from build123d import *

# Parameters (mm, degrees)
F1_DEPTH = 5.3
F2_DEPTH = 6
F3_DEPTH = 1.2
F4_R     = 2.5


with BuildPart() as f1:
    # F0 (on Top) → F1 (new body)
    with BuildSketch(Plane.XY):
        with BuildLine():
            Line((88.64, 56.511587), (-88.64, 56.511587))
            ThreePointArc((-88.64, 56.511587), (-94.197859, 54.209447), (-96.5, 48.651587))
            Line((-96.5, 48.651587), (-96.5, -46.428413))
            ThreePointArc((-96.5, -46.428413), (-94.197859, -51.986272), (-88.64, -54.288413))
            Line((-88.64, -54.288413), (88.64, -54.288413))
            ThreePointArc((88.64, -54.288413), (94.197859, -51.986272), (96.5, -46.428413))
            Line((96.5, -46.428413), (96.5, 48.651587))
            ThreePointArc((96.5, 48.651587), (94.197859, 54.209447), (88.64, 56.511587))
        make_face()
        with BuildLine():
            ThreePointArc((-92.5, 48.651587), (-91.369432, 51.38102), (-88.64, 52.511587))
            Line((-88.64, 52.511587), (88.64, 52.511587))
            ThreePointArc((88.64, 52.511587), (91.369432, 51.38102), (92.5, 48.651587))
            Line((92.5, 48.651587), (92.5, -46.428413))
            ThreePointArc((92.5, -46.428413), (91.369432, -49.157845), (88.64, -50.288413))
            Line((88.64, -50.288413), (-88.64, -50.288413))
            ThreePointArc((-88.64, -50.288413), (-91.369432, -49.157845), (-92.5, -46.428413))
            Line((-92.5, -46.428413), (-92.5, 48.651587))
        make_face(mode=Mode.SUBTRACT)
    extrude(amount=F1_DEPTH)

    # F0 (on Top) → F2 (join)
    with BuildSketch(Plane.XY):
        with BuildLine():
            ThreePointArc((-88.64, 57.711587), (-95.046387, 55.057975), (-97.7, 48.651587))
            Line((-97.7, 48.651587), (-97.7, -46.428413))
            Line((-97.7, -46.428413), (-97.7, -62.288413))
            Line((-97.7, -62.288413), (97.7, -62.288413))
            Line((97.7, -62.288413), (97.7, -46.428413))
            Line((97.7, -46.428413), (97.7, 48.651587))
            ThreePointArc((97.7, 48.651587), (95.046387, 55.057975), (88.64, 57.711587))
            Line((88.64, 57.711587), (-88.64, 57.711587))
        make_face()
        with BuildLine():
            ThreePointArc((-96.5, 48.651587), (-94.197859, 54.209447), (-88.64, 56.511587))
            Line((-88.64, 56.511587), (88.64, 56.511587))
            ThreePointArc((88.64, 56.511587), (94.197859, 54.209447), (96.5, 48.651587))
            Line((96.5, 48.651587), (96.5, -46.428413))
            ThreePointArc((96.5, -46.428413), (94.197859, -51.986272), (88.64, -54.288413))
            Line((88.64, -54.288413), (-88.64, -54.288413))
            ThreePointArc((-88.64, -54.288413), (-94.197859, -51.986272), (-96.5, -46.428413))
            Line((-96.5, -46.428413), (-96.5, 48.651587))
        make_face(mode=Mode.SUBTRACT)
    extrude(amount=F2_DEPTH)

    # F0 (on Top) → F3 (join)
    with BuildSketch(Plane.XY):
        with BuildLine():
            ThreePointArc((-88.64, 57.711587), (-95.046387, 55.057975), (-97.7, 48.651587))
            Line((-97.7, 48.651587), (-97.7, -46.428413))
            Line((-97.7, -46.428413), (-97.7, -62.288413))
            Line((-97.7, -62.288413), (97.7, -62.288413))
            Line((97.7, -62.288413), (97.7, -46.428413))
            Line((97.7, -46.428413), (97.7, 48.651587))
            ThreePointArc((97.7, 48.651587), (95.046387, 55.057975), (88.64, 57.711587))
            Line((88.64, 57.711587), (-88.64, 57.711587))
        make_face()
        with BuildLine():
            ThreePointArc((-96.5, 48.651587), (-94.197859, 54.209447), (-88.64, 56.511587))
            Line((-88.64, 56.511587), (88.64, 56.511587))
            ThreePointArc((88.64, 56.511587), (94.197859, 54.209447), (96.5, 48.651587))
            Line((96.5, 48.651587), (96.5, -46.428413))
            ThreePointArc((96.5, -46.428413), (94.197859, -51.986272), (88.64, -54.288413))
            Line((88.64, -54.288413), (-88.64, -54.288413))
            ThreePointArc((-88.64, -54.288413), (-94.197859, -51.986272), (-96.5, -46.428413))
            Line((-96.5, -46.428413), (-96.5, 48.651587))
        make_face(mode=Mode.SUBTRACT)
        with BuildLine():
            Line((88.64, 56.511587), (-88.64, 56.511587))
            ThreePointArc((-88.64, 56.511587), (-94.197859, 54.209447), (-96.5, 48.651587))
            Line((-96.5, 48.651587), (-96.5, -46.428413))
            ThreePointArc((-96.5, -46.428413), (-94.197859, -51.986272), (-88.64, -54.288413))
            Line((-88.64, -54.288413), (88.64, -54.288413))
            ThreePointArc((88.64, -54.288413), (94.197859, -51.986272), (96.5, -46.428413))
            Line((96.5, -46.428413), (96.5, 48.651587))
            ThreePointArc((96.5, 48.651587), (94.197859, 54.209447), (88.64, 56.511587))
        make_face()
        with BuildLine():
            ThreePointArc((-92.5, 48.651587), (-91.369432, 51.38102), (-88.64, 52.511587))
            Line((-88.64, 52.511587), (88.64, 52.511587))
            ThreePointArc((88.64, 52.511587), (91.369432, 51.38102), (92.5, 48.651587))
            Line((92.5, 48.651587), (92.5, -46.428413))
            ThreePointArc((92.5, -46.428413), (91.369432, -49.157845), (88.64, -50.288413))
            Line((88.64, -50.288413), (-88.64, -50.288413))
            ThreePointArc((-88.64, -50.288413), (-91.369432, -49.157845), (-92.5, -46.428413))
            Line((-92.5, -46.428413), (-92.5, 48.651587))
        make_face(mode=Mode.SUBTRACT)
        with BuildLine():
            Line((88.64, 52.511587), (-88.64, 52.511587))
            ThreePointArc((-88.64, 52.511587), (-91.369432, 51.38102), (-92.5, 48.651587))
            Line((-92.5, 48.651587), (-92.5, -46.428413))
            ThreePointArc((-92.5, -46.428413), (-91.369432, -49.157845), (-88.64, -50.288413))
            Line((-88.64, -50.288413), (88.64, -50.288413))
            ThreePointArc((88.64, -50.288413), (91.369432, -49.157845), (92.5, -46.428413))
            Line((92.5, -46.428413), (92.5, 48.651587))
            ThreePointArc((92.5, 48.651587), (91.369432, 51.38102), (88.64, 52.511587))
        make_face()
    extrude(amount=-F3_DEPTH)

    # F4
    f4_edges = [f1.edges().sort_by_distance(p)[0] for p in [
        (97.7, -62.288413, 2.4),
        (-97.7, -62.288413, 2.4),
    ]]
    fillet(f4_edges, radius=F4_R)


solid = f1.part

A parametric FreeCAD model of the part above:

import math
import FreeCAD as App
import Part
import Sketcher
from FreeCAD import Vector


def edges_at(feature, points):
    """Names of the edges that pass closest to the given points."""
    edges = feature.Shape.Edges
    near = lambda p: min(range(len(edges)), key=lambda i: edges[i].distToShape(Part.Vertex(*p))[0])
    return sorted({f"Edge{near(p) + 1}" for p in points})

doc = App.newDocument("Part")
body = doc.addObject("PartDesign::Body", "Body")

# Sketch on XY plane
sketch1 = body.newObject("Sketcher::SketchObject", "Sketch")
sketch1.AttachmentSupport = (doc.getObject("XY_Plane"), [""])
sketch1.MapMode = "FlatFace"
sketch1.addGeometry(Part.LineSegment(Vector(88.6, 56.5, 0), Vector(-88.6, 56.5, 0)), False)
sketch1.addGeometry(Part.ArcOfCircle(Part.Circle(Vector(-88.6, 48.7, 0), Vector(0, 0, 1), 7.9), math.radians(90), math.radians(180)), False)
sketch1.addGeometry(Part.LineSegment(Vector(-96.5, 48.7, 0), Vector(-96.5, -46.4, 0)), False)
sketch1.addGeometry(Part.ArcOfCircle(Part.Circle(Vector(-88.6, -46.4, 0), Vector(0, 0, 1), 7.9), math.radians(-180), math.radians(-90)), False)
sketch1.addGeometry(Part.LineSegment(Vector(-88.6, -54.3, 0), Vector(88.6, -54.3, 0)), False)
sketch1.addGeometry(Part.ArcOfCircle(Part.Circle(Vector(88.6, -46.4, 0), Vector(0, 0, 1), 7.9), math.radians(-90), math.radians(0)), False)
sketch1.addGeometry(Part.LineSegment(Vector(96.5, -46.4, 0), Vector(96.5, 48.7, 0)), False)
sketch1.addGeometry(Part.ArcOfCircle(Part.Circle(Vector(88.6, 48.7, 0), Vector(0, 0, 1), 7.9), math.radians(0), math.radians(90)), False)
sketch1.addGeometry(Part.LineSegment(Vector(-92.5, -46.4, 0), Vector(-92.5, 48.7, 0)), False)
sketch1.addGeometry(Part.ArcOfCircle(Part.Circle(Vector(-88.6, 48.7, 0), Vector(0, 0, 1), 3.9), math.radians(90), math.radians(180)), False)
sketch1.addGeometry(Part.LineSegment(Vector(-88.6, 52.5, 0), Vector(88.6, 52.5, 0)), False)
sketch1.addGeometry(Part.ArcOfCircle(Part.Circle(Vector(88.6, 48.7, 0), Vector(0, 0, 1), 3.9), math.radians(0), math.radians(90)), False)
sketch1.addGeometry(Part.LineSegment(Vector(92.5, 48.7, 0), Vector(92.5, -46.4, 0)), False)
sketch1.addGeometry(Part.ArcOfCircle(Part.Circle(Vector(88.6, -46.4, 0), Vector(0, 0, 1), 3.9), math.radians(-90), math.radians(0)), False)
sketch1.addGeometry(Part.LineSegment(Vector(88.6, -50.3, 0), Vector(-88.6, -50.3, 0)), False)
sketch1.addGeometry(Part.ArcOfCircle(Part.Circle(Vector(-88.6, -46.4, 0), Vector(0, 0, 1), 3.9), math.radians(-180), math.radians(-90)), False)
sketch1.addConstraint(Sketcher.Constraint("Tangent", 0, 2, 1, 1))
sketch1.addConstraint(Sketcher.Constraint("Tangent", 1, 2, 2, 1))
sketch1.addConstraint(Sketcher.Constraint("Tangent", 2, 2, 3, 1))
sketch1.addConstraint(Sketcher.Constraint("Tangent", 3, 2, 4, 1))
sketch1.addConstraint(Sketcher.Constraint("Tangent", 4, 2, 5, 1))
sketch1.addConstraint(Sketcher.Constraint("Tangent", 5, 2, 6, 1))
sketch1.addConstraint(Sketcher.Constraint("Tangent", 6, 2, 7, 1))
sketch1.addConstraint(Sketcher.Constraint("Tangent", 7, 2, 0, 1))
sketch1.addConstraint(Sketcher.Constraint("Tangent", 8, 2, 9, 2))
sketch1.addConstraint(Sketcher.Constraint("Tangent", 9, 1, 10, 1))
sketch1.addConstraint(Sketcher.Constraint("Tangent", 10, 2, 11, 2))
sketch1.addConstraint(Sketcher.Constraint("Tangent", 11, 1, 12, 1))
sketch1.addConstraint(Sketcher.Constraint("Tangent", 12, 2, 13, 2))
sketch1.addConstraint(Sketcher.Constraint("Tangent", 13, 1, 14, 1))
sketch1.addConstraint(Sketcher.Constraint("Tangent", 14, 2, 15, 2))
sketch1.addConstraint(Sketcher.Constraint("Tangent", 15, 1, 8, 1))
sketch1.addConstraint(Sketcher.Constraint("Horizontal", 0))
sketch1.addConstraint(Sketcher.Constraint("Vertical", 2))
sketch1.addConstraint(Sketcher.Constraint("Horizontal", 4))
sketch1.addConstraint(Sketcher.Constraint("Vertical", 6))
sketch1.addConstraint(Sketcher.Constraint("Vertical", 8))
sketch1.addConstraint(Sketcher.Constraint("Horizontal", 10))
sketch1.addConstraint(Sketcher.Constraint("Vertical", 12))
sketch1.addConstraint(Sketcher.Constraint("Horizontal", 14))
sketch1.addConstraint(Sketcher.Constraint("Coincident", 9, 3, 1, 3))
sketch1.addConstraint(Sketcher.Constraint("Coincident", 11, 3, 7, 3))
sketch1.addConstraint(Sketcher.Constraint("Coincident", 13, 3, 5, 3))
sketch1.addConstraint(Sketcher.Constraint("Equal", 1, 3))
sketch1.addConstraint(Sketcher.Constraint("Equal", 3, 5))
sketch1.addConstraint(Sketcher.Constraint("Equal", 5, 7))
sketch1.addConstraint(Sketcher.Constraint("Equal", 13, 15))
sketch1.addConstraint(Sketcher.Constraint("Radius", 1, 7.859999))
sketch1.addConstraint(Sketcher.Constraint("Radius", 9, 3.859999))
sketch1.addConstraint(Sketcher.Constraint("DistanceX", 0, 2, 0, 1, 177.28))
sketch1.addConstraint(Sketcher.Constraint("DistanceY", 2, 2, 2, 1, 95.08))
sketch1.addConstraint(Sketcher.Constraint("DistanceX", 1, 2, -1, 1, 96.5))
sketch1.addConstraint(Sketcher.Constraint("DistanceY", 3, 3, -1, 1, 46.428412))
pad1 = body.newObject("PartDesign::Pad", "Pad")
pad1.Profile = sketch1
pad1.Length = 5.3

# Sketch on XY plane
sketch2 = body.newObject("Sketcher::SketchObject", "Sketch001")
sketch2.AttachmentSupport = (doc.getObject("XY_Plane"), [""])
sketch2.MapMode = "FlatFace"
sketch2.addGeometry(Part.ArcOfCircle(Part.Circle(Vector(-89, 49, 0), Vector(0, 0, 1), 9), math.radians(90), math.radians(180)), False)
sketch2.addGeometry(Part.LineSegment(Vector(-98, 49, 0), Vector(-98, -62, 0)), False)
sketch2.addGeometry(Part.LineSegment(Vector(-98, -62, 0), Vector(98, -62, 0)), False)
sketch2.addGeometry(Part.LineSegment(Vector(98, -62, 0), Vector(98, 49, 0)), False)
sketch2.addGeometry(Part.ArcOfCircle(Part.Circle(Vector(89, 49, 0), Vector(0, 0, 1), 9), math.radians(0), math.radians(90)), False)
sketch2.addGeometry(Part.LineSegment(Vector(89, 58, 0), Vector(-89, 58, 0)), False)
sketch2.addGeometry(Part.LineSegment(Vector(-96, -46, 0), Vector(-96, 49, 0)), False)
sketch2.addGeometry(Part.ArcOfCircle(Part.Circle(Vector(-89, 49, 0), Vector(0, 0, 1), 8), math.radians(90), math.radians(180)), False)
sketch2.addGeometry(Part.LineSegment(Vector(-89, 57, 0), Vector(89, 57, 0)), False)
sketch2.addGeometry(Part.ArcOfCircle(Part.Circle(Vector(89, 49, 0), Vector(0, 0, 1), 8), math.radians(0), math.radians(90)), False)
sketch2.addGeometry(Part.LineSegment(Vector(96, 49, 0), Vector(96, -46, 0)), False)
sketch2.addGeometry(Part.ArcOfCircle(Part.Circle(Vector(89, -46, 0), Vector(0, 0, 1), 8), math.radians(-90), math.radians(0)), False)
sketch2.addGeometry(Part.LineSegment(Vector(89, -54, 0), Vector(-89, -54, 0)), False)
sketch2.addGeometry(Part.ArcOfCircle(Part.Circle(Vector(-89, -46, 0), Vector(0, 0, 1), 8), math.radians(-180), math.radians(-90)), False)
sketch2.addConstraint(Sketcher.Constraint("Tangent", 0, 2, 1, 1))
sketch2.addConstraint(Sketcher.Constraint("Coincident", 1, 2, 2, 1))
sketch2.addConstraint(Sketcher.Constraint("Coincident", 2, 2, 3, 1))
sketch2.addConstraint(Sketcher.Constraint("Tangent", 3, 2, 4, 1))
sketch2.addConstraint(Sketcher.Constraint("Tangent", 4, 2, 5, 1))
sketch2.addConstraint(Sketcher.Constraint("Tangent", 5, 2, 0, 1))
sketch2.addConstraint(Sketcher.Constraint("Tangent", 6, 2, 7, 2))
sketch2.addConstraint(Sketcher.Constraint("Tangent", 7, 1, 8, 1))
sketch2.addConstraint(Sketcher.Constraint("Tangent", 8, 2, 9, 2))
sketch2.addConstraint(Sketcher.Constraint("Tangent", 9, 1, 10, 1))
sketch2.addConstraint(Sketcher.Constraint("Tangent", 10, 2, 11, 2))
sketch2.addConstraint(Sketcher.Constraint("Tangent", 11, 1, 12, 1))
sketch2.addConstraint(Sketcher.Constraint("Tangent", 12, 2, 13, 2))
sketch2.addConstraint(Sketcher.Constraint("Tangent", 13, 1, 6, 1))
sketch2.addConstraint(Sketcher.Constraint("Vertical", 1))
sketch2.addConstraint(Sketcher.Constraint("Horizontal", 2))
sketch2.addConstraint(Sketcher.Constraint("Vertical", 3))
sketch2.addConstraint(Sketcher.Constraint("Horizontal", 5))
sketch2.addConstraint(Sketcher.Constraint("Vertical", 6))
sketch2.addConstraint(Sketcher.Constraint("Horizontal", 8))
sketch2.addConstraint(Sketcher.Constraint("Vertical", 10))
sketch2.addConstraint(Sketcher.Constraint("Horizontal", 12))
sketch2.addConstraint(Sketcher.Constraint("Coincident", 7, 3, 0, 3))
sketch2.addConstraint(Sketcher.Constraint("Coincident", 9, 3, 4, 3))
sketch2.addConstraint(Sketcher.Constraint("Equal", 0, 4))
sketch2.addConstraint(Sketcher.Constraint("Equal", 9, 11))
sketch2.addConstraint(Sketcher.Constraint("Equal", 11, 13))
sketch2.addConstraint(Sketcher.Constraint("Radius", 0, 9.06))
sketch2.addConstraint(Sketcher.Constraint("Radius", 7, 7.859999))
sketch2.addConstraint(Sketcher.Constraint("DistanceX", 2, 1, 2, 2, 195.4))
sketch2.addConstraint(Sketcher.Constraint("DistanceY", 2, 2, 4, 2, 120.0))
sketch2.addConstraint(Sketcher.Constraint("DistanceY", 2, 2, 11, 1, 8.0))
sketch2.addConstraint(Sketcher.Constraint("DistanceX", 0, 2, -1, 1, 97.7))
sketch2.addConstraint(Sketcher.Constraint("DistanceY", 11, 3, -1, 1, 46.428412))
pad2 = body.newObject("PartDesign::Pad", "Pad001")
pad2.Profile = sketch2
pad2.Length = 6

# Sketch on XY plane
sketch3 = body.newObject("Sketcher::SketchObject", "Sketch002")
sketch3.AttachmentSupport = (doc.getObject("XY_Plane"), [""])
sketch3.MapMode = "FlatFace"
sketch3.addGeometry(Part.ArcOfCircle(Part.Circle(Vector(-89, 49, 0), Vector(0, 0, 1), 9), math.radians(90), math.radians(180)), False)
sketch3.addGeometry(Part.LineSegment(Vector(-98, 49, 0), Vector(-98, -62, 0)), False)
sketch3.addGeometry(Part.LineSegment(Vector(-98, -62, 0), Vector(98, -62, 0)), False)
sketch3.addGeometry(Part.LineSegment(Vector(98, -62, 0), Vector(98, 49, 0)), False)
sketch3.addGeometry(Part.ArcOfCircle(Part.Circle(Vector(89, 49, 0), Vector(0, 0, 1), 9), math.radians(0), math.radians(90)), False)
sketch3.addGeometry(Part.LineSegment(Vector(89, 58, 0), Vector(-89, 58, 0)), False)
sketch3.addConstraint(Sketcher.Constraint("Tangent", 0, 2, 1, 1))
sketch3.addConstraint(Sketcher.Constraint("Coincident", 1, 2, 2, 1))
sketch3.addConstraint(Sketcher.Constraint("Coincident", 2, 2, 3, 1))
sketch3.addConstraint(Sketcher.Constraint("Tangent", 3, 2, 4, 1))
sketch3.addConstraint(Sketcher.Constraint("Tangent", 4, 2, 5, 1))
sketch3.addConstraint(Sketcher.Constraint("Tangent", 5, 2, 0, 1))
sketch3.addConstraint(Sketcher.Constraint("Vertical", 1))
sketch3.addConstraint(Sketcher.Constraint("Horizontal", 2))
sketch3.addConstraint(Sketcher.Constraint("Vertical", 3))
sketch3.addConstraint(Sketcher.Constraint("Horizontal", 5))
sketch3.addConstraint(Sketcher.Constraint("Equal", 0, 4))
sketch3.addConstraint(Sketcher.Constraint("Radius", 0, 9.06))
sketch3.addConstraint(Sketcher.Constraint("DistanceX", 2, 1, 2, 2, 195.4))
sketch3.addConstraint(Sketcher.Constraint("DistanceY", 2, 2, 4, 2, 120.0))
sketch3.addConstraint(Sketcher.Constraint("DistanceX", 0, 2, -1, 1, 97.7))
sketch3.addConstraint(Sketcher.Constraint("DistanceY", -1, 1, 0, 3, 48.651587))
pad3 = body.newObject("PartDesign::Pad", "Pad002")
pad3.Profile = sketch3
pad3.Length = 1.2
pad3.Reversed = True
doc.recompute()

fillet = body.newObject("PartDesign::Fillet", "Fillet")
fillet.Base = (pad3, edges_at(pad3, [(97.7, -62.288, 2.4), (-97.7, -62.288, 2.4)]))
fillet.Radius = 2.5

doc.recompute()
